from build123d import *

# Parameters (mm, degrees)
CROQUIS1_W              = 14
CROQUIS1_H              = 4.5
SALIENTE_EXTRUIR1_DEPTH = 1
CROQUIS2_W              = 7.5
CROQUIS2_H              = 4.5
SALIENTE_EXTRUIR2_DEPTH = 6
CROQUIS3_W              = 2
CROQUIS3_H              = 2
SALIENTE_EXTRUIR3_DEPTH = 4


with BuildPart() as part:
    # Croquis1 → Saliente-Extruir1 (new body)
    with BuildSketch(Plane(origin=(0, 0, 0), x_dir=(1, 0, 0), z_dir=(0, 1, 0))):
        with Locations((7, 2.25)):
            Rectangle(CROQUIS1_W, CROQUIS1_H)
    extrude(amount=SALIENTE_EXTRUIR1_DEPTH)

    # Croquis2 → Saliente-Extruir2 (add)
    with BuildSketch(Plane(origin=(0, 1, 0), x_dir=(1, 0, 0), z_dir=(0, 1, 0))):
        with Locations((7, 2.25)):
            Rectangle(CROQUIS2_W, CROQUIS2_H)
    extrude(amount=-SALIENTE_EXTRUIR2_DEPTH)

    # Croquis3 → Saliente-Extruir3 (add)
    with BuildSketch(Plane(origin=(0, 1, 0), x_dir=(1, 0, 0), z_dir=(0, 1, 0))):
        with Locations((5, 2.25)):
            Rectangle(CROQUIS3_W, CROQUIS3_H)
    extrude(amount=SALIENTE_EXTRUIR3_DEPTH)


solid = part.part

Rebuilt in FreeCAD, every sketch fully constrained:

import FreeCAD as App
import Part
import Sketcher
from FreeCAD import Vector
Q = App.Units.Quantity


def add_polygon(sketch, points):
    """Adds a closed chain of lines whose ends are joined by coincident constraints."""
    first, n = sketch.GeometryCount, len(points)
    for a, b in zip(points, points[1:] + points[:1]):
        sketch.addGeometry(Part.LineSegment(App.Vector(*a, 0), App.Vector(*b, 0)), False)
    for i in range(n):
        sketch.addConstraint(Sketcher.Constraint("Coincident", first + i, 2, first + (i + 1) % n, 1))

doc = App.newDocument("Part")
body = doc.addObject("PartDesign::Body", "Body")

sketch1 = body.newObject("Sketcher::SketchObject", "Sketch")
sketch1.AttachmentSupport = (doc.getObject("XZ_Plane"), [""])
sketch1.MapMode = "FlatFace"
add_polygon(sketch1, [(0, -4.5), (0, 0), (14, 0), (14, -4.5)])
sketch1.addConstraint([
    Sketcher.Constraint("Vertical", 0),
    Sketcher.Constraint("Horizontal", 1),
    Sketcher.Constraint("Vertical", 2),
    Sketcher.Constraint("Horizontal", 3),
    Sketcher.Constraint("Coincident", 0, 2, -1, 1),
    Sketcher.Constraint("DistanceX", 1, 1, 1, 2, Q("14 mm")),
    Sketcher.Constraint("DistanceY", 0, 1, 0, 2, Q("4.5 mm")),
])
pad1 = body.newObject("PartDesign::Pad", "Pad")
pad1.Profile = sketch1
pad1.Length = 1
pad1.Reversed = True

sketch2 = body.newObject("Sketcher::SketchObject", "Sketch001")
sketch2.AttachmentSupport = (doc.getObject("XZ_Plane"), [""])
sketch2.MapMode = "FlatFace"
sketch2.AttachmentOffset = App.Placement(Vector(0, 0, -1), App.Rotation())
add_polygon(sketch2, [(3.2, -4.5), (3.2, 0), (10.8, 0), (10.8, -4.5)])
sketch2.addConstraint([
    Sketcher.Constraint("Vertical", 0),
    Sketcher.Constraint("Horizontal", 1),
    Sketcher.Constraint("Vertical", 2),
    Sketcher.Constraint("Horizontal", 3),
    Sketcher.Constraint("PointOnObject", 0, 2, -1),
    Sketcher.Constraint("DistanceX", 1, 1, 1, 2, Q("7.5 mm")),
    Sketcher.Constraint("DistanceY", 0, 1, 0, 2, Q("4.5 mm")),
    Sketcher.Constraint("DistanceX", -1, 1, 0, 2, Q("3.25 mm")),
])
pad2 = body.newObject("PartDesign::Pad", "Pad001")
pad2.Profile = sketch2
pad2.Length = 6

sketch3 = body.newObject("Sketcher::SketchObject", "Sketch002")
sketch3.AttachmentSupport = (doc.getObject("XZ_Plane"), [""])
sketch3.MapMode = "FlatFace"
sketch3.AttachmentOffset = App.Placement(Vector(0, 0, -1), App.Rotation())
add_polygon(sketch3, [(4, -3.2), (4, -1.2), (6, -1.2), (6, -3.2)])
sketch3.addConstraint([
    Sketcher.Constraint("Vertical", 0),
    Sketcher.Constraint("Horizontal", 1),
    Sketcher.Constraint("Vertical", 2),
    Sketcher.Constraint("Horizontal", 3),
    Sketcher.Constraint("Equal", 3, 0),
    Sketcher.Constraint("DistanceX", 1, 1, 1, 2, Q("2 mm")),
    Sketcher.Constraint("DistanceX", -1, 1, 0, 2, Q("4 mm")),
    Sketcher.Constraint("DistanceY", 0, 2, -1, 1, Q("1.25 mm")),
])
pad3 = body.newObject("PartDesign::Pad", "Pad002")
pad3.Profile = sketch3
pad3.Length = 4
pad3.Reversed = True

doc.recompute()
